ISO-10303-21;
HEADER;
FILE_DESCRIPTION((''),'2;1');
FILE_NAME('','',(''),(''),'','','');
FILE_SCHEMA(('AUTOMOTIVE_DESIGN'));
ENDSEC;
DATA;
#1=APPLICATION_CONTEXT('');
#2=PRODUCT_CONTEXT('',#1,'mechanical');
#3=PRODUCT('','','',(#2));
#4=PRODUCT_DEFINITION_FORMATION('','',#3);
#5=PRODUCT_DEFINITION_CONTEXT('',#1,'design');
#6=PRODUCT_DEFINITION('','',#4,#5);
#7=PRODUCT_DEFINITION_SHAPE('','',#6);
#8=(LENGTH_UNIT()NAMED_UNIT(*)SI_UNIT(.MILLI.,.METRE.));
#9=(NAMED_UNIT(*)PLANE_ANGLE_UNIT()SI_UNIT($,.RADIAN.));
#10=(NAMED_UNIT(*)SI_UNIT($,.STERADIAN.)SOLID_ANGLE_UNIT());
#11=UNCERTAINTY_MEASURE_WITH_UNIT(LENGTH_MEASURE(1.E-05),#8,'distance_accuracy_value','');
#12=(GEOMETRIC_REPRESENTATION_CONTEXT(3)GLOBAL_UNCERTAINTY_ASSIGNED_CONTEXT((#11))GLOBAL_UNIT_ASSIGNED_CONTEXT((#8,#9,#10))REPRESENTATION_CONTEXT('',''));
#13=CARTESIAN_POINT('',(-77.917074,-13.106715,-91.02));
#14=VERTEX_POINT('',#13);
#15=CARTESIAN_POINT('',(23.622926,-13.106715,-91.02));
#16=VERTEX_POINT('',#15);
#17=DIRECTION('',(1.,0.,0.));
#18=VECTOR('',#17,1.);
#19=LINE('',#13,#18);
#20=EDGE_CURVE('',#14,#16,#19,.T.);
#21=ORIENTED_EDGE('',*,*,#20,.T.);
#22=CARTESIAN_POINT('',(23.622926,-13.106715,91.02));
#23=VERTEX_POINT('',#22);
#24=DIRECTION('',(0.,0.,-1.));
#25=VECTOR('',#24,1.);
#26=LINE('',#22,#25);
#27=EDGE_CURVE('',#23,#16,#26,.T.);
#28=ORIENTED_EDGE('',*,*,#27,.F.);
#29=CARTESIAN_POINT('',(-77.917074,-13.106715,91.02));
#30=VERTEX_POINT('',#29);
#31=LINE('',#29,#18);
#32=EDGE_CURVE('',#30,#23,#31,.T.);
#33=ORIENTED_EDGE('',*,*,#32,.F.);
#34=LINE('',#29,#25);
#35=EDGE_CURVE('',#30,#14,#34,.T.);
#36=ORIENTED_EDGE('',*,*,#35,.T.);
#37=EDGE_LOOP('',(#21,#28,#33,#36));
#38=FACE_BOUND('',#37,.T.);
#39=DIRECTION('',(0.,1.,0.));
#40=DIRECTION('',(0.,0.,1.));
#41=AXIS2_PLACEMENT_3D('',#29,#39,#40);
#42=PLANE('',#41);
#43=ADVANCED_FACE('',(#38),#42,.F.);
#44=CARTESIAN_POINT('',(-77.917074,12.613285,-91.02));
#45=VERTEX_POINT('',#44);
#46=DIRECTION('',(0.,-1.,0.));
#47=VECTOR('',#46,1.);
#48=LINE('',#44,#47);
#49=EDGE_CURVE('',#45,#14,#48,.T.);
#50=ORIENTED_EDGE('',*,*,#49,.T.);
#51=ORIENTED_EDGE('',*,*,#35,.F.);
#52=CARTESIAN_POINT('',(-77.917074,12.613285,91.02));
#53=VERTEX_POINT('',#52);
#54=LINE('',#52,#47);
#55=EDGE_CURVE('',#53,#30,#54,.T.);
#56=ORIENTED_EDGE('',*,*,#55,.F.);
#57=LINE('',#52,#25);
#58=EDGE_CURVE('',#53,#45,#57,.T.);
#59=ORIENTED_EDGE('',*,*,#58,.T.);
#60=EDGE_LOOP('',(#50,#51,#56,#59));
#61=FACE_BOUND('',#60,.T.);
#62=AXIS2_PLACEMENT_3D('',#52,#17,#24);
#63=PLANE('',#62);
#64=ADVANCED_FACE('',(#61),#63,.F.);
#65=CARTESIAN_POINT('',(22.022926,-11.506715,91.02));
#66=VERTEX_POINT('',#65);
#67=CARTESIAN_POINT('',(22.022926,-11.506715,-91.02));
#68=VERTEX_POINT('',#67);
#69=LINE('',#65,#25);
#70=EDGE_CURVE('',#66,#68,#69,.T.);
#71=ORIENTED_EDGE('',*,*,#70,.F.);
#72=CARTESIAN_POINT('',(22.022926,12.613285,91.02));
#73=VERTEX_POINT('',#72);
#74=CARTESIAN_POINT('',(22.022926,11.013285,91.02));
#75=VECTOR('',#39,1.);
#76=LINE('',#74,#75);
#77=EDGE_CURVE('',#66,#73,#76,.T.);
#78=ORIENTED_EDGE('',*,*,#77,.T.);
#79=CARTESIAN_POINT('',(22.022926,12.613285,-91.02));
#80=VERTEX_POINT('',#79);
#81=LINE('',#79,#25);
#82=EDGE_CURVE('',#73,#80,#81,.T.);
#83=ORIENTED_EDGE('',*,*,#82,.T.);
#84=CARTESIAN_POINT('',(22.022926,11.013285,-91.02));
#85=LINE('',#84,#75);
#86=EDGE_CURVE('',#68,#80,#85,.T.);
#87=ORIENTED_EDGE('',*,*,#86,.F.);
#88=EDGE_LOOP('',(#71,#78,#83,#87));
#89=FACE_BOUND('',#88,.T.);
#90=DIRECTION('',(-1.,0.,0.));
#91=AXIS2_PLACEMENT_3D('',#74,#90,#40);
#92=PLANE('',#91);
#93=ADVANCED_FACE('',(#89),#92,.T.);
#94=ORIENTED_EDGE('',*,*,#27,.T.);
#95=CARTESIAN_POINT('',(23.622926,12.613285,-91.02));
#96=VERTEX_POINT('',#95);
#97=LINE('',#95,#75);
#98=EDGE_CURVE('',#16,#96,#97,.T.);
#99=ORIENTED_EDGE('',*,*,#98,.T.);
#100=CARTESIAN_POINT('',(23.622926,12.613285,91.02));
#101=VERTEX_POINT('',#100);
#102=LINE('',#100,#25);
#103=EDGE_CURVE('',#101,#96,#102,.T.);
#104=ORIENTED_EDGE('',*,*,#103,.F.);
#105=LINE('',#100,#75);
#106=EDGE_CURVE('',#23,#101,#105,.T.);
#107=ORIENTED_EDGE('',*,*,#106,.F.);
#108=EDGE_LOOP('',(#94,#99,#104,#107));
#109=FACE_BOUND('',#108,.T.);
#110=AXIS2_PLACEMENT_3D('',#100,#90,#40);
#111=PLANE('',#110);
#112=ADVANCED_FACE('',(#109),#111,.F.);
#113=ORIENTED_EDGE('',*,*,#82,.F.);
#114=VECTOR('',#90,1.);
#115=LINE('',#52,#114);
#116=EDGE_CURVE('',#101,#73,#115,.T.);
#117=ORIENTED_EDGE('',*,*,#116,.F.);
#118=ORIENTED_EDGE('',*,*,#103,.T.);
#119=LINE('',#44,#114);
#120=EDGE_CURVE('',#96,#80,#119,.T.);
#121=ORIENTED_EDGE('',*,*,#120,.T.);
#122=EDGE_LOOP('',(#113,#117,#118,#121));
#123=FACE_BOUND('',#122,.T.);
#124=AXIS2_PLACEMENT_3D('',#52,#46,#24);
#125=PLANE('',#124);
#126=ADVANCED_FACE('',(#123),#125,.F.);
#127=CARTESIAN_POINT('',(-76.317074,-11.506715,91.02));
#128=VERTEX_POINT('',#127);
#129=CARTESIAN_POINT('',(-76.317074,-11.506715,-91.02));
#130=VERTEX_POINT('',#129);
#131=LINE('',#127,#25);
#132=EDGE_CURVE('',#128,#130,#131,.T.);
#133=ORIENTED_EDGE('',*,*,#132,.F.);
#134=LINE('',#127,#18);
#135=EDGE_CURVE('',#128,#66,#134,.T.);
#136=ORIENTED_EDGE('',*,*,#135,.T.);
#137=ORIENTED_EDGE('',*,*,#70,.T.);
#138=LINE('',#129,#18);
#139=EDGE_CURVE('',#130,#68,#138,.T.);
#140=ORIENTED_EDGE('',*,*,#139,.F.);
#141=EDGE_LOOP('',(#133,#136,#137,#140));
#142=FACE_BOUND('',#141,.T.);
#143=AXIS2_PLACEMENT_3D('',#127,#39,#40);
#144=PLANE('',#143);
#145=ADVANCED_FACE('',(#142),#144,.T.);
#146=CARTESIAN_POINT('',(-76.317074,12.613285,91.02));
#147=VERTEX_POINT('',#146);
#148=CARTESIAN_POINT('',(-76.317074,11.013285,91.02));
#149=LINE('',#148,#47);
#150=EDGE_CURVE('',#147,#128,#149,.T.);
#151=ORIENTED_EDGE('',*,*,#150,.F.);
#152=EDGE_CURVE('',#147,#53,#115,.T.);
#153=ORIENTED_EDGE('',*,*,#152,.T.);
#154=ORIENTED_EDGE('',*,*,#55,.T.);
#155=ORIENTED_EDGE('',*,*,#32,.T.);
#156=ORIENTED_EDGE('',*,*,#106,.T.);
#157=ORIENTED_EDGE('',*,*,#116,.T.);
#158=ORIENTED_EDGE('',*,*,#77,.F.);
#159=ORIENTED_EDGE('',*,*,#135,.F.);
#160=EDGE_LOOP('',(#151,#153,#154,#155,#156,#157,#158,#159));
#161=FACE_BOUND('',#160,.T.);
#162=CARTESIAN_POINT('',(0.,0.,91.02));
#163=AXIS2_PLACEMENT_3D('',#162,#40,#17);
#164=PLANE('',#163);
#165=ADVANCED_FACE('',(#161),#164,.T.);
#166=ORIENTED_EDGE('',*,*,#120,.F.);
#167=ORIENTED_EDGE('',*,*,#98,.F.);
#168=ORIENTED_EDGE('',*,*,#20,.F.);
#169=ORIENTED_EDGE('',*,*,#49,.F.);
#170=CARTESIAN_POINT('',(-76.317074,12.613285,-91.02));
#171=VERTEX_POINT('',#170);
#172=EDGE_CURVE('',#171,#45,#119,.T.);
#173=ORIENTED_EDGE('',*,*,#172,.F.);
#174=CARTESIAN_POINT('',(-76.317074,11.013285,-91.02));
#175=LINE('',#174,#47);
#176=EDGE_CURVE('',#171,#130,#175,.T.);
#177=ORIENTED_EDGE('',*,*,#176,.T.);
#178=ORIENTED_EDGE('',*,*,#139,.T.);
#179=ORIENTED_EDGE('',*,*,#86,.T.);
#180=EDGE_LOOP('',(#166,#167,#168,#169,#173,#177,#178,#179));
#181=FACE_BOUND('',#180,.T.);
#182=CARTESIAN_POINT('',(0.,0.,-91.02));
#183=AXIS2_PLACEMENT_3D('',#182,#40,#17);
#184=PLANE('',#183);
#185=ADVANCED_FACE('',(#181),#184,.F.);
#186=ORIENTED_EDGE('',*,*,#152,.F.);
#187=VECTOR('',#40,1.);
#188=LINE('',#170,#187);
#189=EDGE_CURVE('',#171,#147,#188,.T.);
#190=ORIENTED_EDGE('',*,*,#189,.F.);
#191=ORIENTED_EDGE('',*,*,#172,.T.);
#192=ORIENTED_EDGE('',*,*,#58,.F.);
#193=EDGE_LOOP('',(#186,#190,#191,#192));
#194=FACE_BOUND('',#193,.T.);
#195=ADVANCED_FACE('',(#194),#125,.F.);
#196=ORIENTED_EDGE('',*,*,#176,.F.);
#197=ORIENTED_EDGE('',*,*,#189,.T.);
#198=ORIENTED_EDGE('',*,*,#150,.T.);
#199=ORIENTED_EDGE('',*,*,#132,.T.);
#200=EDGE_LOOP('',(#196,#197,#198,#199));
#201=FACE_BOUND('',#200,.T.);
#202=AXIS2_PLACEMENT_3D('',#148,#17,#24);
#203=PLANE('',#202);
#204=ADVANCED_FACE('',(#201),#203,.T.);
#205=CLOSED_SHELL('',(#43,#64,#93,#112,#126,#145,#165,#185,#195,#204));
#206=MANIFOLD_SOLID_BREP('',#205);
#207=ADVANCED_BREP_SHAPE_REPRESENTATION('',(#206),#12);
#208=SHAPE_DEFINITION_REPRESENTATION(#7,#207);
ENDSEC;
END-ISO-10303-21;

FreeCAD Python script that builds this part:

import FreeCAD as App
import Part
import Sketcher
Q = App.Units.Quantity

doc = App.newDocument("Part")
body = doc.addObject("PartDesign::Body", "Body")

sketch1 = body.newObject("Sketcher::SketchObject", "Sketch")
sketch1.AttachmentSupport = (doc.getObject("XY_Plane"), [""])
sketch1.MapMode = "FlatFace"
sketch1.addGeometry(Part.LineSegment(App.Vector(-77.917074, 12.613285, 0), App.Vector(-77.917074, -13.106715, 0)), False)
sketch1.addGeometry(Part.LineSegment(App.Vector(-77.917074, -13.106715, 0), App.Vector(23.622926, -13.106715, 0)), False)
sketch1.addGeometry(Part.LineSegment(App.Vector(23.622926, -13.106715, 0), App.Vector(23.622926, 12.613285, 0)), False)
sketch1.addGeometry(Part.LineSegment(App.Vector(23.622926, 12.613285, 0), App.Vector(-77.917074, 12.613285, 0)), False)
sketch1.addGeometry(Part.LineSegment(App.Vector(22.022926, -11.506715, 0), App.Vector(-76.317074, -11.506715, 0)), False)
sketch1.addGeometry(Part.LineSegment(App.Vector(-76.317074, -11.506715, 0), App.Vector(-76.317074, 11.013285, 0)), False)
sketch1.addGeometry(Part.LineSegment(App.Vector(-76.317074, 11.013285, 0), App.Vector(22.022926, 11.013285, 0)), False)
sketch1.addGeometry(Part.LineSegment(App.Vector(22.022926, 11.013285, 0), App.Vector(22.022926, -11.506715, 0)), False)
sketch1.addConstraint(Sketcher.Constraint("Coincident", 0, 2, 1, 1))
sketch1.addConstraint(Sketcher.Constraint("Coincident", 1, 2, 2, 1))
sketch1.addConstraint(Sketcher.Constraint("Coincident", 2, 2, 3, 1))
sketch1.addConstraint(Sketcher.Constraint("Coincident", 3, 2, 0, 1))
sketch1.addConstraint(Sketcher.Constraint("Coincident", 4, 2, 5, 1))
sketch1.addConstraint(Sketcher.Constraint("Coincident", 5, 2, 6, 1))
sketch1.addConstraint(Sketcher.Constraint("Coincident", 6, 2, 7, 1))
sketch1.addConstraint(Sketcher.Constraint("Coincident", 7, 2, 4, 1))
sketch1.addConstraint(Sketcher.Constraint("Vertical", 0))
sketch1.addConstraint(Sketcher.Constraint("Horizontal", 1))
sketch1.addConstraint(Sketcher.Constraint("Vertical", 2))
sketch1.addConstraint(Sketcher.Constraint("Horizontal", 3))
sketch1.addConstraint(Sketcher.Constraint("Horizontal", 4))
sketch1.addConstraint(Sketcher.Constraint("Vertical", 5))
sketch1.addConstraint(Sketcher.Constraint("Horizontal", 6))
sketch1.addConstraint(Sketcher.Constraint("Vertical", 7))
sketch1.addConstraint(Sketcher.Constraint("DistanceX", 1, 1, 1, 2, Q("101.54 mm")))
sketch1.addConstraint(Sketcher.Constraint("DistanceX", 4, 2, 4, 1, Q("98.34 mm")))
sketch1.addConstraint(Sketcher.Constraint("DistanceY", 0, 2, 0, 1, Q("25.72 mm")))
sketch1.addConstraint(Sketcher.Constraint("DistanceY", 5, 1, 5, 2, Q("22.52 mm")))
sketch1.addConstraint(Sketcher.Constraint("DistanceX", 0, 2, 4, 2, Q("1.6 mm")))
sketch1.addConstraint(Sketcher.Constraint("DistanceY", 0, 2, 4, 2, Q("1.6 mm")))
sketch1.addConstraint(Sketcher.Constraint("DistanceX", 0, 2, -1, 1, Q("77.917074 mm")))
sketch1.addConstraint(Sketcher.Constraint("DistanceY", 0, 2, -1, 1, Q("13.106715 mm")))
pad1 = body.newObject("PartDesign::Pad", "Pad")
pad1.Profile = sketch1
pad1.Length = 182.04
pad1.Midplane = True

sketch2 = body.newObject("Sketcher::SketchObject", "Sketch001")
sketch2.AttachmentSupport = (doc.getObject("XZ_Plane"), [""])
sketch2.MapMode = "FlatFace"
sketch2.AttachmentOffset = App.Placement(App.Vector(0, 0, -12.613285), App.Rotation())
sketch2.addGeometry(Part.LineSegment(App.Vector(-76.317074, -91.02, 0), App.Vector(-76.317074, 91.02, 0)), False)
sketch2.addGeometry(Part.LineSegment(App.Vector(-76.317074, 91.02, 0), App.Vector(22.022926, 91.02, 0)), False)
sketch2.addGeometry(Part.LineSegment(App.Vector(22.022926, 91.02, 0), App.Vector(22.022926, -91.02, 0)), False)
sketch2.addGeometry(Part.LineSegment(App.Vector(22.022926, -91.02, 0), App.Vector(-76.317074, -91.02, 0)), False)
sketch2.addConstraint(Sketcher.Constraint("Coincident", 0, 2, 1, 1))
sketch2.addConstraint(Sketcher.Constraint("Coincident", 1, 2, 2, 1))
sketch2.addConstraint(Sketcher.Constraint("Coincident", 2, 2, 3, 1))
sketch2.addConstraint(Sketcher.Constraint("Coincident", 3, 2, 0, 1))
sketch2.addConstraint(Sketcher.Constraint("Vertical", 0))
sketch2.addConstraint(Sketcher.Constraint("Horizontal", 1))
sketch2.addConstraint(Sketcher.Constraint("Vertical", 2))
sketch2.addConstraint(Sketcher.Constraint("Horizontal", 3))
sketch2.addConstraint(Sketcher.Constraint("DistanceX", 1, 1, 1, 2, Q("98.34 mm")))
sketch2.addConstraint(Sketcher.Constraint("DistanceY", 0, 1, 0, 2, Q("182.04 mm")))
sketch2.addConstraint(Sketcher.Constraint("DistanceY", -1, 1, 0, 2, Q("91.02 mm")))
sketch2.addConstraint(Sketcher.Constraint("DistanceX", 0, 2, -1, 1, Q("76.317074 mm")))
pocket1 = body.newObject("PartDesign::Pocket", "Pocket")
pocket1.Profile = sketch2
pocket1.Length = 6.04
pocket1.Reversed = True

doc.recompute()
